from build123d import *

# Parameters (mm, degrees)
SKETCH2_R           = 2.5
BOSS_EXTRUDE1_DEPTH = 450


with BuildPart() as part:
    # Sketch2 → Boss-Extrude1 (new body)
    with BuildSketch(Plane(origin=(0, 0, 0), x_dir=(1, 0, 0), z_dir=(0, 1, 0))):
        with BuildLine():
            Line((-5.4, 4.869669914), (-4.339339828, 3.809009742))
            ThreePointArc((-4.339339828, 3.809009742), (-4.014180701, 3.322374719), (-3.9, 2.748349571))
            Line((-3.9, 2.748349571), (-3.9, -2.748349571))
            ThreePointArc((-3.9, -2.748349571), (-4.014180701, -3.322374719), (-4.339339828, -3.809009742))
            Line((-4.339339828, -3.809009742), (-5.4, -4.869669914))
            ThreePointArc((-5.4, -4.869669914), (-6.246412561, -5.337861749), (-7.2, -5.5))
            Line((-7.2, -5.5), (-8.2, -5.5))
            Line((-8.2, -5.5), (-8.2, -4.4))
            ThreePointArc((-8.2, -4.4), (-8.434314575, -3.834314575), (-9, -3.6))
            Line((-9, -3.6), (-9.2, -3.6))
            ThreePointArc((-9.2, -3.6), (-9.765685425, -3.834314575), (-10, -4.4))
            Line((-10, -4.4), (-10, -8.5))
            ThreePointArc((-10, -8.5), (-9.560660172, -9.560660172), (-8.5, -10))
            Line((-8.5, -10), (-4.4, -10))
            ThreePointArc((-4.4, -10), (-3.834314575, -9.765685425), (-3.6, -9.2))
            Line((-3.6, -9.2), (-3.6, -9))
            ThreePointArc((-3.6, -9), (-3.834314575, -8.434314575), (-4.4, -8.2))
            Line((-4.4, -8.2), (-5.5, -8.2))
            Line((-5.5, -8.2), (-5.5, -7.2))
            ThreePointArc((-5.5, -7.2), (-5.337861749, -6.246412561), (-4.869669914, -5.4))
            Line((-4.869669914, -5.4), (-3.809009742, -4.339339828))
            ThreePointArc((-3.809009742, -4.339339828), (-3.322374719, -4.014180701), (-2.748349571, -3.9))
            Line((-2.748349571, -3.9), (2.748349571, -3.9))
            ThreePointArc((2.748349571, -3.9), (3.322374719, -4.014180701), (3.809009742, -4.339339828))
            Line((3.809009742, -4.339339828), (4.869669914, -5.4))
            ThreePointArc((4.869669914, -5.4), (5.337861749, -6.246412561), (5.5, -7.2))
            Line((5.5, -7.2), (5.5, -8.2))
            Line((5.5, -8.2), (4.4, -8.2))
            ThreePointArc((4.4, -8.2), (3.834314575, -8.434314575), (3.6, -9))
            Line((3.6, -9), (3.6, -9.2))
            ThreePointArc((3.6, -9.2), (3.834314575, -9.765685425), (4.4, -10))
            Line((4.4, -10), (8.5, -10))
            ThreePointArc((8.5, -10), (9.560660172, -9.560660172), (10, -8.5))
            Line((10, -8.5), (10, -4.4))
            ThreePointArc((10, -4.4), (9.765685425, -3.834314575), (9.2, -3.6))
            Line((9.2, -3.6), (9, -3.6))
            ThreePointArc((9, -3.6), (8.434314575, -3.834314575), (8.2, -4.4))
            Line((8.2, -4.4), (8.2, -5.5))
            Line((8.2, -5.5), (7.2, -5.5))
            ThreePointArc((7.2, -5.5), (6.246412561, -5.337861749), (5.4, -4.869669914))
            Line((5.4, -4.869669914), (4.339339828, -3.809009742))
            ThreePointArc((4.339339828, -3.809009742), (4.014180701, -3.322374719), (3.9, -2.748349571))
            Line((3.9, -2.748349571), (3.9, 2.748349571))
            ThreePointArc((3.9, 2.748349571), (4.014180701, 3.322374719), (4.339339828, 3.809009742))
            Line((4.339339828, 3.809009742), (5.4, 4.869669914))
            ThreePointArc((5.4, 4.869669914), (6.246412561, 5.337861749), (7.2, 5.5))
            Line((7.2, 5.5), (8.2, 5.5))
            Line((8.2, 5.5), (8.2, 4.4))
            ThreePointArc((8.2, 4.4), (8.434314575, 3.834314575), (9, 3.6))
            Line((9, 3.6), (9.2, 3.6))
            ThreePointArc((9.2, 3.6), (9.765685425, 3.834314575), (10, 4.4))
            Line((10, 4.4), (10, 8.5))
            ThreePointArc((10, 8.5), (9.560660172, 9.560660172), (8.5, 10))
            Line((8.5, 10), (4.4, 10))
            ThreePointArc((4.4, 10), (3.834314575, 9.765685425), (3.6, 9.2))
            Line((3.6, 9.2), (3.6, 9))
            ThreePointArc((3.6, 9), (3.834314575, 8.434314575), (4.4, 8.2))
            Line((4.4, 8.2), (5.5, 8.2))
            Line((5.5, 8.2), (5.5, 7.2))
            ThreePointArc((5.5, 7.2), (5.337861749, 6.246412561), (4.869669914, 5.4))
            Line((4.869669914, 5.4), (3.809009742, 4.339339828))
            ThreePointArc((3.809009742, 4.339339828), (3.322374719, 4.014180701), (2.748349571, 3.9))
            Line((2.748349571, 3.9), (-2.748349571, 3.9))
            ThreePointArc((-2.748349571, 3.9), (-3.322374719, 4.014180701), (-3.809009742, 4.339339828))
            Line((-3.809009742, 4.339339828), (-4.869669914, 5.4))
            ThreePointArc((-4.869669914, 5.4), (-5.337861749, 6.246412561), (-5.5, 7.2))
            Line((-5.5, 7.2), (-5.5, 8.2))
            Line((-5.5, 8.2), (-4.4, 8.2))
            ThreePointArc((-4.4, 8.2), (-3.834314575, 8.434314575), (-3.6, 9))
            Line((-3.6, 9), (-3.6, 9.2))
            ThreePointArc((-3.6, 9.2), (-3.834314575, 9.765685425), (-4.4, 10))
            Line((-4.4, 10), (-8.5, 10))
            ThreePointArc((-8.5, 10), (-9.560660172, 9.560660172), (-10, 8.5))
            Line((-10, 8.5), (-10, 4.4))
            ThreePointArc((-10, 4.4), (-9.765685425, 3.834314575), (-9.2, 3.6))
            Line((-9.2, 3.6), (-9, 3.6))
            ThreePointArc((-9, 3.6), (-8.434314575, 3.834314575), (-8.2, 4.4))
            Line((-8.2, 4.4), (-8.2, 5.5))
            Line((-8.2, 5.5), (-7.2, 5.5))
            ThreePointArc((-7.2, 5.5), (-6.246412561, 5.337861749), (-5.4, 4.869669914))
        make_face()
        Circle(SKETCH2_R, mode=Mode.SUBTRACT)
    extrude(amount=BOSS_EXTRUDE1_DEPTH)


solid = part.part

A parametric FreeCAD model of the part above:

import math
import FreeCAD as App
import Part
import Sketcher

V = App.Vector
Q = App.Units.Quantity

doc = App.newDocument("Part")
body = doc.addObject("PartDesign::Body", "Body")

sketch1 = body.newObject("Sketcher::SketchObject", "Sketch")
sketch1.AttachmentSupport = (doc.getObject("XZ_Plane"), [""])
sketch1.MapMode = "FlatFace"
sketch1.addGeometry(Part.LineSegment(V(-5.4, -4.87, 0), V(-4.34, -3.81, 0)), False)
sketch1.addGeometry(Part.ArcOfCircle(Part.Circle(V(-5.4, -2.75, 0), V(0, 0, 1), 1.5), math.radians(-45), math.radians(0)), False)
sketch1.addGeometry(Part.LineSegment(V(-3.9, -2.75, 0), V(-3.9, 2.75, 0)), False)
sketch1.addGeometry(Part.ArcOfCircle(Part.Circle(V(-5.4, 2.75, 0), V(0, 0, 1), 1.5), math.radians(0), math.radians(45)), False)
sketch1.addGeometry(Part.LineSegment(V(-4.34, 3.81, 0), V(-5.4, 4.87, 0)), False)
sketch1.addGeometry(Part.ArcOfCircle(Part.Circle(V(-7.2, 2.61, 0), V(0, 0, 1), 2.89), math.radians(51), math.radians(90)), False)
sketch1.addGeometry(Part.LineSegment(V(-7.2, 5.5, 0), V(-8.2, 5.5, 0)), False)
sketch1.addGeometry(Part.LineSegment(V(-8.2, 5.5, 0), V(-8.2, 4.4, 0)), False)
sketch1.addGeometry(Part.ArcOfCircle(Part.Circle(V(-9, 4.4, 0), V(0, 0, 1), 0.8), math.radians(-90), math.radians(0)), False)
sketch1.addGeometry(Part.LineSegment(V(-9, 3.6, 0), V(-9.2, 3.6, 0)), False)
sketch1.addGeometry(Part.ArcOfCircle(Part.Circle(V(-9.2, 4.4, 0), V(0, 0, 1), 0.8), math.radians(180), math.radians(270)), False)
sketch1.addGeometry(Part.LineSegment(V(-10, 4.4, 0), V(-10, 8.5, 0)), False)
sketch1.addGeometry(Part.ArcOfCircle(Part.Circle(V(-8.5, 8.5, 0), V(0, 0, 1), 1.5), math.radians(90), math.radians(180)), False)
sketch1.addGeometry(Part.LineSegment(V(-8.5, 10, 0), V(-4.4, 10, 0)), False)
sketch1.addGeometry(Part.ArcOfCircle(Part.Circle(V(-4.4, 9.2, 0), V(0, 0, 1), 0.8), math.radians(0), math.radians(90)), False)
sketch1.addGeometry(Part.LineSegment(V(-3.6, 9.2, 0), V(-3.6, 9, 0)), False)
sketch1.addGeometry(Part.ArcOfCircle(Part.Circle(V(-4.4, 9, 0), V(0, 0, 1), 0.8), math.radians(-90), math.radians(0)), False)
sketch1.addGeometry(Part.LineSegment(V(-4.4, 8.2, 0), V(-5.5, 8.2, 0)), False)
sketch1.addGeometry(Part.LineSegment(V(-5.5, 8.2, 0), V(-5.5, 7.2, 0)), False)
sketch1.addGeometry(Part.ArcOfCircle(Part.Circle(V(-2.61, 7.2, 0), V(0, 0, 1), 2.89), math.radians(180), math.radians(219)), False)
sketch1.addGeometry(Part.LineSegment(V(-4.87, 5.4, 0), V(-3.81, 4.34, 0)), False)
sketch1.addGeometry(Part.ArcOfCircle(Part.Circle(V(-2.75, 5.4, 0), V(0, 0, 1), 1.5), math.radians(-135), math.radians(-90)), False)
sketch1.addGeometry(Part.LineSegment(V(-2.75, 3.9, 0), V(2.75, 3.9, 0)), False)
sketch1.addGeometry(Part.ArcOfCircle(Part.Circle(V(2.75, 5.4, 0), V(0, 0, 1), 1.5), math.radians(-90), math.radians(-45)), False)
sketch1.addGeometry(Part.LineSegment(V(3.81, 4.34, 0), V(4.87, 5.4, 0)), False)
sketch1.addGeometry(Part.ArcOfCircle(Part.Circle(V(2.61, 7.2, 0), V(0, 0, 1), 2.89), math.radians(-39), math.radians(0)), False)
sketch1.addGeometry(Part.LineSegment(V(5.5, 7.2, 0), V(5.5, 8.2, 0)), False)
sketch1.addGeometry(Part.LineSegment(V(5.5, 8.2, 0), V(4.4, 8.2, 0)), False)
sketch1.addGeometry(Part.ArcOfCircle(Part.Circle(V(4.4, 9, 0), V(0, 0, 1), 0.8), math.radians(180), math.radians(270)), False)
sketch1.addGeometry(Part.LineSegment(V(3.6, 9, 0), V(3.6, 9.2, 0)), False)
sketch1.addGeometry(Part.ArcOfCircle(Part.Circle(V(4.4, 9.2, 0), V(0, 0, 1), 0.8), math.radians(90), math.radians(180)), False)
sketch1.addGeometry(Part.LineSegment(V(4.4, 10, 0), V(8.5, 10, 0)), False)
sketch1.addGeometry(Part.ArcOfCircle(Part.Circle(V(8.5, 8.5, 0), V(0, 0, 1), 1.5), math.radians(0), math.radians(90)), False)
sketch1.addGeometry(Part.LineSegment(V(10, 8.5, 0), V(10, 4.4, 0)), False)
sketch1.addGeometry(Part.ArcOfCircle(Part.Circle(V(9.2, 4.4, 0), V(0, 0, 1), 0.8), math.radians(-90), math.radians(0)), False)
sketch1.addGeometry(Part.LineSegment(V(9.2, 3.6, 0), V(9, 3.6, 0)), False)
sketch1.addGeometry(Part.ArcOfCircle(Part.Circle(V(9, 4.4, 0), V(0, 0, 1), 0.8), math.radians(180), math.radians(270)), False)
sketch1.addGeometry(Part.LineSegment(V(8.2, 4.4, 0), V(8.2, 5.5, 0)), False)
sketch1.addGeometry(Part.LineSegment(V(8.2, 5.5, 0), V(7.2, 5.5, 0)), False)
sketch1.addGeometry(Part.ArcOfCircle(Part.Circle(V(7.2, 2.61, 0), V(0, 0, 1), 2.89), math.radians(90), math.radians(129)), False)
sketch1.addGeometry(Part.LineSegment(V(5.4, 4.87, 0), V(4.34, 3.81, 0)), False)
sketch1.addGeometry(Part.ArcOfCircle(Part.Circle(V(5.4, 2.75, 0), V(0, 0, 1), 1.5), math.radians(135), math.radians(180)), False)
sketch1.addGeometry(Part.LineSegment(V(3.9, 2.75, 0), V(3.9, -2.75, 0)), False)
sketch1.addGeometry(Part.ArcOfCircle(Part.Circle(V(5.4, -2.75, 0), V(0, 0, 1), 1.5), math.radians(180), math.radians(225)), False)
sketch1.addGeometry(Part.LineSegment(V(4.34, -3.81, 0), V(5.4, -4.87, 0)), False)
sketch1.addGeometry(Part.ArcOfCircle(Part.Circle(V(7.2, -2.61, 0), V(0, 0, 1), 2.89), math.radians(-129), math.radians(-90)), False)
sketch1.addGeometry(Part.LineSegment(V(7.2, -5.5, 0), V(8.2, -5.5, 0)), False)
sketch1.addGeometry(Part.LineSegment(V(8.2, -5.5, 0), V(8.2, -4.4, 0)), False)
sketch1.addGeometry(Part.ArcOfCircle(Part.Circle(V(9, -4.4, 0), V(0, 0, 1), 0.8), math.radians(90), math.radians(180)), False)
sketch1.addGeometry(Part.LineSegment(V(9, -3.6, 0), V(9.2, -3.6, 0)), False)
sketch1.addGeometry(Part.ArcOfCircle(Part.Circle(V(9.2, -4.4, 0), V(0, 0, 1), 0.8), math.radians(0), math.radians(90)), False)
sketch1.addGeometry(Part.LineSegment(V(10, -4.4, 0), V(10, -8.5, 0)), False)
sketch1.addGeometry(Part.ArcOfCircle(Part.Circle(V(8.5, -8.5, 0), V(0, 0, 1), 1.5), math.radians(-90), math.radians(0)), False)
sketch1.addGeometry(Part.LineSegment(V(8.5, -10, 0), V(4.4, -10, 0)), False)
sketch1.addGeometry(Part.ArcOfCircle(Part.Circle(V(4.4, -9.2, 0), V(0, 0, 1), 0.8), math.radians(180), math.radians(270)), False)
sketch1.addGeometry(Part.LineSegment(V(3.6, -9.2, 0), V(3.6, -9, 0)), False)
sketch1.addGeometry(Part.ArcOfCircle(Part.Circle(V(4.4, -9, 0), V(0, 0, 1), 0.8), math.radians(90), math.radians(180)), False)
sketch1.addGeometry(Part.LineSegment(V(4.4, -8.2, 0), V(5.5, -8.2, 0)), False)
sketch1.addGeometry(Part.LineSegment(V(5.5, -8.2, 0), V(5.5, -7.2, 0)), False)
sketch1.addGeometry(Part.ArcOfCircle(Part.Circle(V(2.61, -7.2, 0), V(0, 0, 1), 2.89), math.radians(0), math.radians(39)), False)
sketch1.addGeometry(Part.LineSegment(V(4.87, -5.4, 0), V(3.81, -4.34, 0)), False)
sketch1.addGeometry(Part.ArcOfCircle(Part.Circle(V(2.75, -5.4, 0), V(0, 0, 1), 1.5), math.radians(45), math.radians(90)), False)
sketch1.addGeometry(Part.LineSegment(V(2.75, -3.9, 0), V(-2.75, -3.9, 0)), False)
sketch1.addGeometry(Part.ArcOfCircle(Part.Circle(V(-2.75, -5.4, 0), V(0, 0, 1), 1.5), math.radians(90), math.radians(135)), False)
sketch1.addGeometry(Part.LineSegment(V(-3.81, -4.34, 0), V(-4.87, -5.4, 0)), False)
sketch1.addGeometry(Part.ArcOfCircle(Part.Circle(V(-2.61, -7.2, 0), V(0, 0, 1), 2.89), math.radians(141), math.radians(180)), False)
sketch1.addGeometry(Part.LineSegment(V(-5.5, -7.2, 0), V(-5.5, -8.2, 0)), False)
sketch1.addGeometry(Part.LineSegment(V(-5.5, -8.2, 0), V(-4.4, -8.2, 0)), False)
sketch1.addGeometry(Part.ArcOfCircle(Part.Circle(V(-4.4, -9, 0), V(0, 0, 1), 0.8), math.radians(0), math.radians(90)), False)
sketch1.addGeometry(Part.LineSegment(V(-3.6, -9, 0), V(-3.6, -9.2, 0)), False)
sketch1.addGeometry(Part.ArcOfCircle(Part.Circle(V(-4.4, -9.2, 0), V(0, 0, 1), 0.8), math.radians(-90), math.radians(0)), False)
sketch1.addGeometry(Part.LineSegment(V(-4.4, -10, 0), V(-8.5, -10, 0)), False)
sketch1.addGeometry(Part.ArcOfCircle(Part.Circle(V(-8.5, -8.5, 0), V(0, 0, 1), 1.5), math.radians(180), math.radians(270)), False)
sketch1.addGeometry(Part.LineSegment(V(-10, -8.5, 0), V(-10, -4.4, 0)), False)
sketch1.addGeometry(Part.ArcOfCircle(Part.Circle(V(-9.2, -4.4, 0), V(0, 0, 1), 0.8), math.radians(90), math.radians(180)), False)
sketch1.addGeometry(Part.LineSegment(V(-9.2, -3.6, 0), V(-9, -3.6, 0)), False)
sketch1.addGeometry(Part.ArcOfCircle(Part.Circle(V(-9, -4.4, 0), V(0, 0, 1), 0.8), math.radians(0), math.radians(90)), False)
sketch1.addGeometry(Part.LineSegment(V(-8.2, -4.4, 0), V(-8.2, -5.5, 0)), False)
sketch1.addGeometry(Part.LineSegment(V(-8.2, -5.5, 0), V(-7.2, -5.5, 0)), False)
sketch1.addGeometry(Part.ArcOfCircle(Part.Circle(V(-7.2, -2.61, 0), V(0, 0, 1), 2.89), math.radians(-90), math.radians(-51)), False)
sketch1.addGeometry(Part.Circle(V(0, 0, 0), V(0, 0, 1), 2.5), False)
sketch1.addConstraint(Sketcher.Constraint("Tangent", 0, 2, 1, 1))
sketch1.addConstraint(Sketcher.Constraint("Tangent", 1, 2, 2, 1))
sketch1.addConstraint(Sketcher.Constraint("Tangent", 2, 2, 3, 1))
sketch1.addConstraint(Sketcher.Constraint("Tangent", 3, 2, 4, 1))
sketch1.addConstraint(Sketcher.Constraint("Coincident", 4, 2, 5, 1))
sketch1.addConstraint(Sketcher.Constraint("Tangent", 5, 2, 6, 1))
sketch1.addConstraint(Sketcher.Constraint("Coincident", 6, 2, 7, 1))
sketch1.addConstraint(Sketcher.Constraint("Tangent", 7, 2, 8, 2))
sketch1.addConstraint(Sketcher.Constraint("Tangent", 8, 1, 9, 1))
sketch1.addConstraint(Sketcher.Constraint("Tangent", 9, 2, 10, 2))
sketch1.addConstraint(Sketcher.Constraint("Tangent", 10, 1, 11, 1))
sketch1.addConstraint(Sketcher.Constraint("Tangent", 11, 2, 12, 2))
sketch1.addConstraint(Sketcher.Constraint("Tangent", 12, 1, 13, 1))
sketch1.addConstraint(Sketcher.Constraint("Tangent", 13, 2, 14, 2))
sketch1.addConstraint(Sketcher.Constraint("Tangent", 14, 1, 15, 1))
sketch1.addConstraint(Sketcher.Constraint("Tangent", 15, 2, 16, 2))
sketch1.addConstraint(Sketcher.Constraint("Tangent", 16, 1, 17, 1))
sketch1.addConstraint(Sketcher.Constraint("Coincident", 17, 2, 18, 1))
sketch1.addConstraint(Sketcher.Constraint("Tangent", 18, 2, 19, 1))
sketch1.addConstraint(Sketcher.Constraint("Coincident", 19, 2, 20, 1))
sketch1.addConstraint(Sketcher.Constraint("Tangent", 20, 2, 21, 1))
sketch1.addConstraint(Sketcher.Constraint("Tangent", 21, 2, 22, 1))
sketch1.addConstraint(Sketcher.Constraint("Tangent", 22, 2, 23, 1))
sketch1.addConstraint(Sketcher.Constraint("Tangent", 23, 2, 24, 1))
sketch1.addConstraint(Sketcher.Constraint("Coincident", 24, 2, 25, 1))
sketch1.addConstraint(Sketcher.Constraint("Tangent", 25, 2, 26, 1))
sketch1.addConstraint(Sketcher.Constraint("Coincident", 26, 2, 27, 1))
sketch1.addConstraint(Sketcher.Constraint("Tangent", 27, 2, 28, 2))
sketch1.addConstraint(Sketcher.Constraint("Tangent", 28, 1, 29, 1))
sketch1.addConstraint(Sketcher.Constraint("Tangent", 29, 2, 30, 2))
sketch1.addConstraint(Sketcher.Constraint("Tangent", 30, 1, 31, 1))
sketch1.addConstraint(Sketcher.Constraint("Tangent", 31, 2, 32, 2))
sketch1.addConstraint(Sketcher.Constraint("Tangent", 32, 1, 33, 1))
sketch1.addConstraint(Sketcher.Constraint("Tangent", 33, 2, 34, 2))
sketch1.addConstraint(Sketcher.Constraint("Tangent", 34, 1, 35, 1))
sketch1.addConstraint(Sketcher.Constraint("Tangent", 35, 2, 36, 2))
sketch1.addConstraint(Sketcher.Constraint("Tangent", 36, 1, 37, 1))
sketch1.addConstraint(Sketcher.Constraint("Coincident", 37, 2, 38, 1))
sketch1.addConstraint(Sketcher.Constraint("Tangent", 38, 2, 39, 1))
sketch1.addConstraint(Sketcher.Constraint("Coincident", 39, 2, 40, 1))
sketch1.addConstraint(Sketcher.Constraint("Tangent", 40, 2, 41, 1))
sketch1.addConstraint(Sketcher.Constraint("Tangent", 41, 2, 42, 1))
sketch1.addConstraint(Sketcher.Constraint("Tangent", 42, 2, 43, 1))
sketch1.addConstraint(Sketcher.Constraint("Tangent", 43, 2, 44, 1))
sketch1.addConstraint(Sketcher.Constraint("Coincident", 44, 2, 45, 1))
sketch1.addConstraint(Sketcher.Constraint("Tangent", 45, 2, 46, 1))
sketch1.addConstraint(Sketcher.Constraint("Coincident", 46, 2, 47, 1))
sketch1.addConstraint(Sketcher.Constraint("Tangent", 47, 2, 48, 2))
sketch1.addConstraint(Sketcher.Constraint("Tangent", 48, 1, 49, 1))
sketch1.addConstraint(Sketcher.Constraint("Tangent", 49, 2, 50, 2))
sketch1.addConstraint(Sketcher.Constraint("Tangent", 50, 1, 51, 1))
sketch1.addConstraint(Sketcher.Constraint("Tangent", 51, 2, 52, 2))
sketch1.addConstraint(Sketcher.Constraint("Tangent", 52, 1, 53, 1))
sketch1.addConstraint(Sketcher.Constraint("Tangent", 53, 2, 54, 2))
sketch1.addConstraint(Sketcher.Constraint("Tangent", 54, 1, 55, 1))
sketch1.addConstraint(Sketcher.Constraint("Tangent", 55, 2, 56, 2))
sketch1.addConstraint(Sketcher.Constraint("Tangent", 56, 1, 57, 1))
sketch1.addConstraint(Sketcher.Constraint("Coincident", 57, 2, 58, 1))
sketch1.addConstraint(Sketcher.Constraint("Tangent", 58, 2, 59, 1))
sketch1.addConstraint(Sketcher.Constraint("Coincident", 59, 2, 60, 1))
sketch1.addConstraint(Sketcher.Constraint("Tangent", 60, 2, 61, 1))
sketch1.addConstraint(Sketcher.Constraint("Tangent", 61, 2, 62, 1))
sketch1.addConstraint(Sketcher.Constraint("Tangent", 62, 2, 63, 1))
sketch1.addConstraint(Sketcher.Constraint("Tangent", 63, 2, 64, 1))
sketch1.addConstraint(Sketcher.Constraint("Coincident", 64, 2, 65, 1))
sketch1.addConstraint(Sketcher.Constraint("Tangent", 65, 2, 66, 1))
sketch1.addConstraint(Sketcher.Constraint("Coincident", 66, 2, 67, 1))
sketch1.addConstraint(Sketcher.Constraint("Tangent", 67, 2, 68, 2))
sketch1.addConstraint(Sketcher.Constraint("Tangent", 68, 1, 69, 1))
sketch1.addConstraint(Sketcher.Constraint("Tangent", 69, 2, 70, 2))
sketch1.addConstraint(Sketcher.Constraint("Tangent", 70, 1, 71, 1))
sketch1.addConstraint(Sketcher.Constraint("Tangent", 71, 2, 72, 2))
sketch1.addConstraint(Sketcher.Constraint("Tangent", 72, 1, 73, 1))
sketch1.addConstraint(Sketcher.Constraint("Tangent", 73, 2, 74, 2))
sketch1.addConstraint(Sketcher.Constraint("Tangent", 74, 1, 75, 1))
sketch1.addConstraint(Sketcher.Constraint("Tangent", 75, 2, 76, 2))
sketch1.addConstraint(Sketcher.Constraint("Tangent", 76, 1, 77, 1))
sketch1.addConstraint(Sketcher.Constraint("Coincident", 77, 2, 78, 1))
sketch1.addConstraint(Sketcher.Constraint("Tangent", 78, 2, 79, 1))
sketch1.addConstraint(Sketcher.Constraint("Coincident", 79, 2, 0, 1))
sketch1.addConstraint(Sketcher.Constraint("Vertical", 2))
sketch1.addConstraint(Sketcher.Constraint("Horizontal", 6))
sketch1.addConstraint(Sketcher.Constraint("Vertical", 7))
sketch1.addConstraint(Sketcher.Constraint("Horizontal", 9))
sketch1.addConstraint(Sketcher.Constraint("Vertical", 11))
sketch1.addConstraint(Sketcher.Constraint("Horizontal", 13))
sketch1.addConstraint(Sketcher.Constraint("Vertical", 15))
sketch1.addConstraint(Sketcher.Constraint("Horizontal", 17))
sketch1.addConstraint(Sketcher.Constraint("Vertical", 18))
sketch1.addConstraint(Sketcher.Constraint("Horizontal", 22))
sketch1.addConstraint(Sketcher.Constraint("Vertical", 26))
sketch1.addConstraint(Sketcher.Constraint("Horizontal", 27))
sketch1.addConstraint(Sketcher.Constraint("Vertical", 29))
sketch1.addConstraint(Sketcher.Constraint("Horizontal", 31))
sketch1.addConstraint(Sketcher.Constraint("Vertical", 33))
sketch1.addConstraint(Sketcher.Constraint("Horizontal", 35))
sketch1.addConstraint(Sketcher.Constraint("Vertical", 37))
sketch1.addConstraint(Sketcher.Constraint("Horizontal", 38))
sketch1.addConstraint(Sketcher.Constraint("Vertical", 42))
sketch1.addConstraint(Sketcher.Constraint("Horizontal", 46))
sketch1.addConstraint(Sketcher.Constraint("Vertical", 47))
sketch1.addConstraint(Sketcher.Constraint("Horizontal", 49))
sketch1.addConstraint(Sketcher.Constraint("Vertical", 51))
sketch1.addConstraint(Sketcher.Constraint("Horizontal", 53))
sketch1.addConstraint(Sketcher.Constraint("Vertical", 55))
sketch1.addConstraint(Sketcher.Constraint("Horizontal", 57))
sketch1.addConstraint(Sketcher.Constraint("Vertical", 58))
sketch1.addConstraint(Sketcher.Constraint("Horizontal", 62))
sketch1.addConstraint(Sketcher.Constraint("Vertical", 66))
sketch1.addConstraint(Sketcher.Constraint("Horizontal", 67))
sketch1.addConstraint(Sketcher.Constraint("Vertical", 69))
sketch1.addConstraint(Sketcher.Constraint("Horizontal", 71))
sketch1.addConstraint(Sketcher.Constraint("Vertical", 73))
sketch1.addConstraint(Sketcher.Constraint("Horizontal", 75))
sketch1.addConstraint(Sketcher.Constraint("Vertical", 77))
sketch1.addConstraint(Sketcher.Constraint("Horizontal", 78))
sketch1.addConstraint(Sketcher.Constraint("Coincident", 80, 3, -1, 1))
sketch1.addConstraint(Sketcher.Constraint("Equal", 1, 3))
sketch1.addConstraint(Sketcher.Constraint("Equal", 8, 10))
sketch1.addConstraint(Sketcher.Constraint("Equal", 3, 12))
sketch1.addConstraint(Sketcher.Constraint("Equal", 10, 14))
sketch1.addConstraint(Sketcher.Constraint("Equal", 14, 16))
sketch1.addConstraint(Sketcher.Constraint("Equal", 5, 19))
sketch1.addConstraint(Sketcher.Constraint("Equal", 12, 21))
sketch1.addConstraint(Sketcher.Constraint("Equal", 21, 23))
sketch1.addConstraint(Sketcher.Constraint("Equal", 19, 25))
sketch1.addConstraint(Sketcher.Constraint("Equal", 16, 28))
sketch1.addConstraint(Sketcher.Constraint("Equal", 28, 30))
sketch1.addConstraint(Sketcher.Constraint("Equal", 23, 32))
sketch1.addConstraint(Sketcher.Constraint("Equal", 30, 34))
sketch1.addConstraint(Sketcher.Constraint("Equal", 34, 36))
sketch1.addConstraint(Sketcher.Constraint("Equal", 25, 39))
sketch1.addConstraint(Sketcher.Constraint("Equal", 32, 41))
sketch1.addConstraint(Sketcher.Constraint("Equal", 41, 43))
sketch1.addConstraint(Sketcher.Constraint("Equal", 39, 45))
sketch1.addConstraint(Sketcher.Constraint("Equal", 36, 48))
sketch1.addConstraint(Sketcher.Constraint("Equal", 48, 50))
sketch1.addConstraint(Sketcher.Constraint("Equal", 43, 52))
sketch1.addConstraint(Sketcher.Constraint("Equal", 50, 54))
sketch1.addConstraint(Sketcher.Constraint("Equal", 54, 56))
sketch1.addConstraint(Sketcher.Constraint("Equal", 45, 59))
sketch1.addConstraint(Sketcher.Constraint("Equal", 52, 61))
sketch1.addConstraint(Sketcher.Constraint("Equal", 61, 63))
sketch1.addConstraint(Sketcher.Constraint("Equal", 59, 65))
sketch1.addConstraint(Sketcher.Constraint("Equal", 56, 68))
sketch1.addConstraint(Sketcher.Constraint("Equal", 68, 70))
sketch1.addConstraint(Sketcher.Constraint("Equal", 63, 72))
sketch1.addConstraint(Sketcher.Constraint("Equal", 70, 74))
sketch1.addConstraint(Sketcher.Constraint("Equal", 74, 76))
sketch1.addConstraint(Sketcher.Constraint("Equal", 65, 79))
sketch1.addConstraint(Sketcher.Constraint("Symmetric", 1, 3, 41, 3, -1, 1))
sketch1.addConstraint(Sketcher.Constraint("Symmetric", 5, 3, 45, 3, -1, 1))
sketch1.addConstraint(Sketcher.Constraint("Symmetric", 8, 3, 48, 3, -1, 1))
sketch1.addConstraint(Sketcher.Constraint("Symmetric", 12, 3, 52, 3, -1, 1))
sketch1.addConstraint(Sketcher.Constraint("Symmetric", 16, 3, 56, 3, -1, 1))
sketch1.addConstraint(Sketcher.Constraint("Symmetric", 19, 3, 59, 3, -1, 1))
sketch1.addConstraint(Sketcher.Constraint("Symmetric", 21, 3, 61, 3, -1, 1))
sketch1.addConstraint(Sketcher.Constraint("Symmetric", 25, 3, 65, 3, -1, 1))
sketch1.addConstraint(Sketcher.Constraint("Symmetric", 28, 3, 68, 3, -1, 1))
sketch1.addConstraint(Sketcher.Constraint("Symmetric", 32, 3, 72, 3, -1, 1))
sketch1.addConstraint(Sketcher.Constraint("Symmetric", 36, 3, 76, 3, -1, 1))
sketch1.addConstraint(Sketcher.Constraint("Symmetric", 39, 3, 79, 3, -1, 1))
sketch1.addConstraint(Sketcher.Constraint("Symmetric", 3, 2, 43, 2, -1, 1))
sketch1.addConstraint(Sketcher.Constraint("Symmetric", 23, 2, 63, 2, -1, 1))
sketch1.addConstraint(Sketcher.Constraint("Symmetric", 19, 3, 25, 3, -2))
sketch1.addConstraint(Sketcher.Constraint("Symmetric", 16, 3, 28, 3, -2))
sketch1.addConstraint(Sketcher.Constraint("Symmetric", 12, 3, 32, 3, -2))
sketch1.addConstraint(Sketcher.Constraint("Symmetric", 8, 3, 36, 3, -2))
sketch1.addConstraint(Sketcher.Constraint("Symmetric", 5, 3, 39, 3, -2))
sketch1.addConstraint(Sketcher.Constraint("Symmetric", 20, 2, 23, 2, -2))
sketch1.addConstraint(Sketcher.Constraint("Symmetric", 3, 2, 40, 2, -2))
sketch1.addConstraint(Sketcher.Constraint("Perpendicular", 0, 4))
sketch1.addConstraint(Sketcher.Constraint("Parallel", 4, 20))
sketch1.addConstraint(Sketcher.Constraint("Perpendicular", 20, 24))
sketch1.addConstraint(Sketcher.Constraint("Parallel", 44, 60))
sketch1.addConstraint(Sketcher.Constraint("Horizontal", 23, 3, 19, 2))
sketch1.addConstraint(Sketcher.Constraint("Vertical", 3, 3, 4, 2))
sketch1.addConstraint(Sketcher.Constraint("Equal", 62, 2))
sketch1.addConstraint(Sketcher.Constraint("Equal", 67, 7))
sketch1.addConstraint(Sketcher.Constraint("Equal", 71, 11))
sketch1.addConstraint(Sketcher.Constraint("Equal", 75, 15))
sketch1.addConstraint(Sketcher.Constraint("Equal", 78, 18))
sketch1.addConstraint(Sketcher.Constraint("Diameter", 80, Q("5 mm")))
sketch1.addConstraint(Sketcher.Constraint("Radius", 1, Q("1.5 mm")))
sketch1.addConstraint(Sketcher.Constraint("Radius", 8, Q("0.8 mm")))
sketch1.addConstraint(Sketcher.Constraint("DistanceX", 6, 2, 6, 1, Q("1 mm")))
sketch1.addConstraint(Sketcher.Constraint("DistanceX", 9, 2, 9, 1, Q("0.2 mm")))
sketch1.addConstraint(Sketcher.Constraint("DistanceX", 13, 1, 13, 2, Q("4.1 mm")))
sketch1.addConstraint(Sketcher.Constraint("DistanceX", 17, 2, 17, 1, Q("1.1 mm")))
sketch1.addConstraint(Sketcher.Constraint("DistanceX", 8, 3, -1, 1, Q("9 mm")))
sketch1.addConstraint(Sketcher.Constraint("DistanceY", -1, 1, 16, 3, Q("9 mm")))
sketch1.addConstraint(Sketcher.Constraint("DistanceX", 1, 3, -1, 1, Q("5.4 mm")))
sketch1.addConstraint(Sketcher.Constraint("DistanceX", 22, 1, 22, 2, Q("5.496699 mm")))
pad1 = body.newObject("PartDesign::Pad", "Pad")
pad1.Profile = sketch1
pad1.Length = 450
pad1.Reversed = True

doc.recompute()
